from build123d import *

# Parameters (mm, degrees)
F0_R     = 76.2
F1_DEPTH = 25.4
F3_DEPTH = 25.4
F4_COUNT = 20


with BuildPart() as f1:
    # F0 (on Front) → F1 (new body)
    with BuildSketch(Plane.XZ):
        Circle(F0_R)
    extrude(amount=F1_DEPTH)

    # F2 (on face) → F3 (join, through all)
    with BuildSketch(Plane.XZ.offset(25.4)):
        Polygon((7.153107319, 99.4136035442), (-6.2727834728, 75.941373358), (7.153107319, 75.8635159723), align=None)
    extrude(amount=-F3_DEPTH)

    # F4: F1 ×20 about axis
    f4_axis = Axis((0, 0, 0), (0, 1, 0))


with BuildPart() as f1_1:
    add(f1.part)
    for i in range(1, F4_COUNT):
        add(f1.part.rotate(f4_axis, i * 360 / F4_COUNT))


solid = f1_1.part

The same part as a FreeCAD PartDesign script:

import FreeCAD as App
import Part
import Sketcher
from FreeCAD import Vector
Q = App.Units.Quantity


def add_polygon(sketch, points):
    """Adds a closed chain of lines whose ends are joined by coincident constraints."""
    first, n = sketch.GeometryCount, len(points)
    for a, b in zip(points, points[1:] + points[:1]):
        sketch.addGeometry(Part.LineSegment(App.Vector(*a, 0), App.Vector(*b, 0)), False)
    for i in range(n):
        sketch.addConstraint(Sketcher.Constraint("Coincident", first + i, 2, first + (i + 1) % n, 1))

doc = App.newDocument("Part")
body = doc.addObject("PartDesign::Body", "Body")

# Sketch on XZ plane
sketch1 = body.newObject("Sketcher::SketchObject", "Sketch")
sketch1.AttachmentSupport = (doc.getObject("XZ_Plane"), [""])
sketch1.MapMode = "FlatFace"
sketch1.addGeometry(Part.Circle(Vector(0, 0, 0), Vector(0, 0, 1), 76.2), False)
sketch1.addConstraint(Sketcher.Constraint("Coincident", 0, 3, -1, 1))
sketch1.addConstraint(Sketcher.Constraint("Diameter", 0, Q("6 in")))
pad1 = body.newObject("PartDesign::Pad", "Pad")
pad1.Profile = sketch1
pad1.Length = Q("1 in")

# Sketch on XZ plane
sketch2 = body.newObject("Sketcher::SketchObject", "Sketch001")
sketch2.AttachmentSupport = (doc.getObject("XZ_Plane"), [""])
sketch2.MapMode = "FlatFace"
sketch2.AttachmentOffset = App.Placement(Vector(0, 0, 1 * 25.4), App.Rotation())
add_polygon(sketch2, [(7.153107, 99.413604), (-6.272783, 75.941373), (7.153107, 75.863516)])  # lines 0-2
sketch2.addConstraint(Sketcher.Constraint("Vertical", 2))
sketch2.addConstraint(Sketcher.Constraint("DistanceY", 2, 1, 2, 2, 23.550088))
sketch2.addConstraint(Sketcher.Constraint("DistanceX", 0, 2, 1, 2, 13.425891))
sketch2.addConstraint(Sketcher.Constraint("DistanceY", 0, 2, 2, 2, 23.47223))
sketch2.addConstraint(Sketcher.Constraint("DistanceX", 0, 2, -1, 1, 6.272783))
sketch2.addConstraint(Sketcher.Constraint("DistanceY", -1, 1, 0, 2, 75.941373))
pad2 = body.newObject("PartDesign::Pad", "Pad001")
pad2.Profile = sketch2
pad2.Length = Q("1 in")
pad2.Reversed = True
body2 = doc.addObject("PartDesign::Body", "Body001")
doc.recompute()

body2.BaseFeature = body
doc.recompute()

body3 = doc.addObject("PartDesign::Body", "Body002")
body3.BaseFeature = body
body3.Placement = App.Placement(Vector(0, 0, 0), App.Rotation(Vector(0, 1, 0), 18))
boolean = body2.newObject("PartDesign::Boolean", "Boolean")
boolean.Type = "Fuse"
boolean.addObjects([body3])
doc.recompute()

body4 = doc.addObject("PartDesign::Body", "Body003")
body4.BaseFeature = body
body4.Placement = App.Placement(Vector(0, 0, 0), App.Rotation(Vector(0, 1, 0), 36))
boolean2 = body2.newObject("PartDesign::Boolean", "Boolean001")
boolean2.Type = "Fuse"
boolean2.addObjects([body4])
doc.recompute()

body5 = doc.addObject("PartDesign::Body", "Body004")
body5.BaseFeature = body
body5.Placement = App.Placement(Vector(0, 0, 0), App.Rotation(Vector(0, 1, 0), 54))
boolean3 = body2.newObject("PartDesign::Boolean", "Boolean002")
boolean3.Type = "Fuse"
boolean3.addObjects([body5])
doc.recompute()

body6 = doc.addObject("PartDesign::Body", "Body005")
body6.BaseFeature = body
body6.Placement = App.Placement(Vector(0, 0, 0), App.Rotation(Vector(0, 1, 0), 72))
boolean4 = body2.newObject("PartDesign::Boolean", "Boolean003")
boolean4.Type = "Fuse"
boolean4.addObjects([body6])
doc.recompute()

body7 = doc.addObject("PartDesign::Body", "Body006")
body7.BaseFeature = body
body7.Placement = App.Placement(Vector(0, 0, 0), App.Rotation(Vector(0, 1, 0), 90))
boolean5 = body2.newObject("PartDesign::Boolean", "Boolean004")
boolean5.Type = "Fuse"
boolean5.addObjects([body7])
doc.recompute()

body8 = doc.addObject("PartDesign::Body", "Body007")
body8.BaseFeature = body
body8.Placement = App.Placement(Vector(0, 0, 0), App.Rotation(Vector(0, 1, 0), 108))
boolean6 = body2.newObject("PartDesign::Boolean", "Boolean005")
boolean6.Type = "Fuse"
boolean6.addObjects([body8])
doc.recompute()

body9 = doc.addObject("PartDesign::Body", "Body008")
body9.BaseFeature = body
body9.Placement = App.Placement(Vector(0, 0, 0), App.Rotation(Vector(0, 1, 0), 126))
boolean7 = body2.newObject("PartDesign::Boolean", "Boolean006")
boolean7.Type = "Fuse"
boolean7.addObjects([body9])
doc.recompute()

body10 = doc.addObject("PartDesign::Body", "Body009")
body10.BaseFeature = body
body10.Placement = App.Placement(Vector(0, 0, 0), App.Rotation(Vector(0, 1, 0), 144))
boolean8 = body2.newObject("PartDesign::Boolean", "Boolean007")
boolean8.Type = "Fuse"
boolean8.addObjects([body10])
doc.recompute()

body11 = doc.addObject("PartDesign::Body", "Body010")
body11.BaseFeature = body
body11.Placement = App.Placement(Vector(0, 0, 0), App.Rotation(Vector(0, 1, 0), 162))
boolean9 = body2.newObject("PartDesign::Boolean", "Boolean008")
boolean9.Type = "Fuse"
boolean9.addObjects([body11])
doc.recompute()

body12 = doc.addObject("PartDesign::Body", "Body011")
body12.BaseFeature = body
body12.Placement = App.Placement(Vector(0, 0, 0), App.Rotation(Vector(0, 1, 0), 180))
boolean10 = body2.newObject("PartDesign::Boolean", "Boolean009")
boolean10.Type = "Fuse"
boolean10.addObjects([body12])
doc.recompute()

body13 = doc.addObject("PartDesign::Body", "Body012")
body13.BaseFeature = body
body13.Placement = App.Placement(Vector(0, 0, 0), App.Rotation(Vector(0, 1, 0), 198))
boolean11 = body2.newObject("PartDesign::Boolean", "Boolean010")
boolean11.Type = "Fuse"
boolean11.addObjects([body13])
doc.recompute()

body14 = doc.addObject("PartDesign::Body", "Body013")
body14.BaseFeature = body
body14.Placement = App.Placement(Vector(0, 0, 0), App.Rotation(Vector(0, 1, 0), 216))
boolean12 = body2.newObject("PartDesign::Boolean", "Boolean011")
boolean12.Type = "Fuse"
boolean12.addObjects([body14])
doc.recompute()

body15 = doc.addObject("PartDesign::Body", "Body014")
body15.BaseFeature = body
body15.Placement = App.Placement(Vector(0, 0, 0), App.Rotation(Vector(0, 1, 0), 234))
boolean13 = body2.newObject("PartDesign::Boolean", "Boolean012")
boolean13.Type = "Fuse"
boolean13.addObjects([body15])
doc.recompute()

body16 = doc.addObject("PartDesign::Body", "Body015")
body16.BaseFeature = body
body16.Placement = App.Placement(Vector(0, 0, 0), App.Rotation(Vector(0, 1, 0), 252))
boolean14 = body2.newObject("PartDesign::Boolean", "Boolean013")
boolean14.Type = "Fuse"
boolean14.addObjects([body16])
doc.recompute()

body17 = doc.addObject("PartDesign::Body", "Body016")
body17.BaseFeature = body
body17.Placement = App.Placement(Vector(0, 0, 0), App.Rotation(Vector(0, 1, 0), 270))
boolean15 = body2.newObject("PartDesign::Boolean", "Boolean014")
boolean15.Type = "Fuse"
boolean15.addObjects([body17])
doc.recompute()

body18 = doc.addObject("PartDesign::Body", "Body017")
body18.BaseFeature = body
body18.Placement = App.Placement(Vector(0, 0, 0), App.Rotation(Vector(0, 1, 0), 288))
boolean16 = body2.newObject("PartDesign::Boolean", "Boolean015")
boolean16.Type = "Fuse"
boolean16.addObjects([body18])
doc.recompute()

body19 = doc.addObject("PartDesign::Body", "Body018")
body19.BaseFeature = body
body19.Placement = App.Placement(Vector(0, 0, 0), App.Rotation(Vector(0, 1, 0), 306))
boolean17 = body2.newObject("PartDesign::Boolean", "Boolean016")
boolean17.Type = "Fuse"
boolean17.addObjects([body19])
doc.recompute()

body20 = doc.addObject("PartDesign::Body", "Body019")
body20.BaseFeature = body
body20.Placement = App.Placement(Vector(0, 0, 0), App.Rotation(Vector(0, 1, 0), 324))
boolean18 = body2.newObject("PartDesign::Boolean", "Boolean017")
boolean18.Type = "Fuse"
boolean18.addObjects([body20])
doc.recompute()

body.Placement = App.Placement(Vector(0, 0, 0), App.Rotation(Vector(0, 1, 0), 342))
boolean19 = body2.newObject("PartDesign::Boolean", "Boolean018")
boolean19.Type = "Fuse"
boolean19.addObjects([body])

doc.recompute()
